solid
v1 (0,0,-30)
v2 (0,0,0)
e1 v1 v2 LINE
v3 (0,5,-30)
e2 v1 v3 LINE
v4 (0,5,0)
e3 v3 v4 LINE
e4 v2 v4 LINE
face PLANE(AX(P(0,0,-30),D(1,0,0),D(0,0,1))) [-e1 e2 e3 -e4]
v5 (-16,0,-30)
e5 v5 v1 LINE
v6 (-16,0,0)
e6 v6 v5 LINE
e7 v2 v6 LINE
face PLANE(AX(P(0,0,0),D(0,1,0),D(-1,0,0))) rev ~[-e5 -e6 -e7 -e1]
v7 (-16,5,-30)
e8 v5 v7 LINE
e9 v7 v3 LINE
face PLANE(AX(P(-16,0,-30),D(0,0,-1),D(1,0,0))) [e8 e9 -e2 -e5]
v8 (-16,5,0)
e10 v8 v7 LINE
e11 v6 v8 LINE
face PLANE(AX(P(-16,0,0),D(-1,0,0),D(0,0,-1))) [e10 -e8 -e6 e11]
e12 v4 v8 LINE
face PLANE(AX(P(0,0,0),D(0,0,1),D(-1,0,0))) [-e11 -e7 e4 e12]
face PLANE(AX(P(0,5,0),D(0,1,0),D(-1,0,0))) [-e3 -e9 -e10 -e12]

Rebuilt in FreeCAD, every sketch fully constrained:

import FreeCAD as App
import Part
import Sketcher

V = App.Vector


def add_polygon(sketch, points):
    """Adds a closed chain of lines whose ends are joined by coincident constraints."""
    first, n = sketch.GeometryCount, len(points)
    for a, b in zip(points, points[1:] + points[:1]):
        sketch.addGeometry(Part.LineSegment(App.Vector(*a, 0), App.Vector(*b, 0)), False)
    for i in range(n):
        sketch.addConstraint(Sketcher.Constraint("Coincident", first + i, 2, first + (i + 1) % n, 1))

doc = App.newDocument("Part")
params = doc.addObject("Spreadsheet::Sheet", "Params")
for row, (alias, value) in enumerate([
    ("sketch1_width", "16 mm"),
    ("sketch1_height", "30 mm"),
    ("pad1_length", "5 mm"),
], start=1):
    params.set(f"A{row}", alias)
    params.set(f"B{row}", "=" + value)
    params.setAlias(f"B{row}", alias)

body = doc.addObject("PartDesign::Body", "Body")

sketch1 = body.newObject("Sketcher::SketchObject", "Sketch")
sketch1.AttachmentSupport = (doc.getObject("XZ_Plane"), [""])
sketch1.MapMode = "FlatFace"
add_polygon(sketch1, [(-16, 0), (0, 0), (0, -30), (-16, -30)])
sketch1.addConstraint([
    Sketcher.Constraint("Horizontal", 0),
    Sketcher.Constraint("Vertical", 1),
    Sketcher.Constraint("Horizontal", 2),
    Sketcher.Constraint("Vertical", 3),
    Sketcher.Constraint("Coincident", 0, 2, -1, 1),
    Sketcher.Constraint("DistanceX", 0, 1, 0, 2, 16.0),
    Sketcher.Constraint("DistanceY", 1, 2, 1, 1, 30.0),
])
sketch1.setExpression("Constraints[9]", "Params.sketch1_width")
sketch1.setExpression("Constraints[10]", "Params.sketch1_height")
pad1 = body.newObject("PartDesign::Pad", "Pad")
pad1.Profile = sketch1
pad1.setExpression("Length", "Params.pad1_length")
pad1.Reversed = True

doc.recompute()
